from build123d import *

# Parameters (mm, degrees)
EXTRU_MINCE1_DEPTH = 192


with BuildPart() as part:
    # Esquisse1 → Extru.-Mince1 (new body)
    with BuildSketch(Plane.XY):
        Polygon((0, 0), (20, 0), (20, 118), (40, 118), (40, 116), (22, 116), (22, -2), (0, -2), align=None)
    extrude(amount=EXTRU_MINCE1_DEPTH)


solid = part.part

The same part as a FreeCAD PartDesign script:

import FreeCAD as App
import Part
import Sketcher

V = App.Vector
Q = App.Units.Quantity

doc = App.newDocument("Part")
params = doc.addObject("Spreadsheet::Sheet", "Params")
for row, (alias, value) in enumerate([
    ("sketch1_width", "20 mm"),
    ("sketch1_width2", "22 mm"),
    ("sketch1_height", "2 mm"),
    ("sketch1_height2", "118 mm"),
    ("pad1_length", "192 mm"),
], start=1):
    params.set(f"A{row}", alias)
    params.set(f"B{row}", "=" + value)
    params.setAlias(f"B{row}", alias)

body = doc.addObject("PartDesign::Body", "Body")

# Sketch on XY plane
sketch1 = body.newObject("Sketcher::SketchObject", "Sketch")
sketch1.AttachmentSupport = (doc.getObject("XY_Plane"), [""])
sketch1.MapMode = "FlatFace"
sketch1.addGeometry(Part.LineSegment(V(20, 0, 0), V(0, 0, 0)), False)
sketch1.addGeometry(Part.LineSegment(V(0, 0, 0), V(0, -2, 0)), False)
sketch1.addGeometry(Part.LineSegment(V(0, -2, 0), V(22, -2, 0)), False)
sketch1.addGeometry(Part.LineSegment(V(22, -2, 0), V(22, 116, 0)), False)
sketch1.addGeometry(Part.LineSegment(V(22, 116, 0), V(40, 116, 0)), False)
sketch1.addGeometry(Part.LineSegment(V(40, 116, 0), V(40, 118, 0)), False)
sketch1.addGeometry(Part.LineSegment(V(40, 118, 0), V(20, 118, 0)), False)
sketch1.addGeometry(Part.LineSegment(V(20, 118, 0), V(20, 0, 0)), False)
sketch1.addConstraint(Sketcher.Constraint("Coincident", 0, 2, 1, 1))
sketch1.addConstraint(Sketcher.Constraint("Coincident", 1, 2, 2, 1))
sketch1.addConstraint(Sketcher.Constraint("Coincident", 2, 2, 3, 1))
sketch1.addConstraint(Sketcher.Constraint("Coincident", 3, 2, 4, 1))
sketch1.addConstraint(Sketcher.Constraint("Coincident", 4, 2, 5, 1))
sketch1.addConstraint(Sketcher.Constraint("Coincident", 5, 2, 6, 1))
sketch1.addConstraint(Sketcher.Constraint("Coincident", 6, 2, 7, 1))
sketch1.addConstraint(Sketcher.Constraint("Coincident", 7, 2, 0, 1))
sketch1.addConstraint(Sketcher.Constraint("Horizontal", 0))
sketch1.addConstraint(Sketcher.Constraint("Vertical", 1))
sketch1.addConstraint(Sketcher.Constraint("Horizontal", 2))
sketch1.addConstraint(Sketcher.Constraint("Vertical", 3))
sketch1.addConstraint(Sketcher.Constraint("Horizontal", 4))
sketch1.addConstraint(Sketcher.Constraint("Vertical", 5))
sketch1.addConstraint(Sketcher.Constraint("Horizontal", 6))
sketch1.addConstraint(Sketcher.Constraint("Vertical", 7))
sketch1.addConstraint(Sketcher.Constraint("Coincident", 0, 2, -1, 1))
sketch1.addConstraint(Sketcher.Constraint("Equal", 0, 6))
sketch1.addConstraint(Sketcher.Constraint("Equal", 1, 5))
sketch1.addConstraint(Sketcher.Constraint("DistanceX", 0, 2, 0, 1, Q("20 mm")))
sketch1.addConstraint(Sketcher.Constraint("DistanceX", 2, 1, 2, 2, Q("22 mm")))
sketch1.addConstraint(Sketcher.Constraint("DistanceY", 1, 2, 1, 1, Q("2 mm")))
sketch1.addConstraint(Sketcher.Constraint("DistanceY", 3, 1, 3, 2, Q("118 mm")))
sketch1.setExpression("Constraints[19]", "Params.sketch1_width")
sketch1.setExpression("Constraints[20]", "Params.sketch1_width2")
sketch1.setExpression("Constraints[21]", "Params.sketch1_height")
sketch1.setExpression("Constraints[22]", "Params.sketch1_height2")
pad1 = body.newObject("PartDesign::Pad", "Pad")
pad1.Profile = sketch1
pad1.setExpression("Length", "Params.pad1_length")

doc.recompute()
